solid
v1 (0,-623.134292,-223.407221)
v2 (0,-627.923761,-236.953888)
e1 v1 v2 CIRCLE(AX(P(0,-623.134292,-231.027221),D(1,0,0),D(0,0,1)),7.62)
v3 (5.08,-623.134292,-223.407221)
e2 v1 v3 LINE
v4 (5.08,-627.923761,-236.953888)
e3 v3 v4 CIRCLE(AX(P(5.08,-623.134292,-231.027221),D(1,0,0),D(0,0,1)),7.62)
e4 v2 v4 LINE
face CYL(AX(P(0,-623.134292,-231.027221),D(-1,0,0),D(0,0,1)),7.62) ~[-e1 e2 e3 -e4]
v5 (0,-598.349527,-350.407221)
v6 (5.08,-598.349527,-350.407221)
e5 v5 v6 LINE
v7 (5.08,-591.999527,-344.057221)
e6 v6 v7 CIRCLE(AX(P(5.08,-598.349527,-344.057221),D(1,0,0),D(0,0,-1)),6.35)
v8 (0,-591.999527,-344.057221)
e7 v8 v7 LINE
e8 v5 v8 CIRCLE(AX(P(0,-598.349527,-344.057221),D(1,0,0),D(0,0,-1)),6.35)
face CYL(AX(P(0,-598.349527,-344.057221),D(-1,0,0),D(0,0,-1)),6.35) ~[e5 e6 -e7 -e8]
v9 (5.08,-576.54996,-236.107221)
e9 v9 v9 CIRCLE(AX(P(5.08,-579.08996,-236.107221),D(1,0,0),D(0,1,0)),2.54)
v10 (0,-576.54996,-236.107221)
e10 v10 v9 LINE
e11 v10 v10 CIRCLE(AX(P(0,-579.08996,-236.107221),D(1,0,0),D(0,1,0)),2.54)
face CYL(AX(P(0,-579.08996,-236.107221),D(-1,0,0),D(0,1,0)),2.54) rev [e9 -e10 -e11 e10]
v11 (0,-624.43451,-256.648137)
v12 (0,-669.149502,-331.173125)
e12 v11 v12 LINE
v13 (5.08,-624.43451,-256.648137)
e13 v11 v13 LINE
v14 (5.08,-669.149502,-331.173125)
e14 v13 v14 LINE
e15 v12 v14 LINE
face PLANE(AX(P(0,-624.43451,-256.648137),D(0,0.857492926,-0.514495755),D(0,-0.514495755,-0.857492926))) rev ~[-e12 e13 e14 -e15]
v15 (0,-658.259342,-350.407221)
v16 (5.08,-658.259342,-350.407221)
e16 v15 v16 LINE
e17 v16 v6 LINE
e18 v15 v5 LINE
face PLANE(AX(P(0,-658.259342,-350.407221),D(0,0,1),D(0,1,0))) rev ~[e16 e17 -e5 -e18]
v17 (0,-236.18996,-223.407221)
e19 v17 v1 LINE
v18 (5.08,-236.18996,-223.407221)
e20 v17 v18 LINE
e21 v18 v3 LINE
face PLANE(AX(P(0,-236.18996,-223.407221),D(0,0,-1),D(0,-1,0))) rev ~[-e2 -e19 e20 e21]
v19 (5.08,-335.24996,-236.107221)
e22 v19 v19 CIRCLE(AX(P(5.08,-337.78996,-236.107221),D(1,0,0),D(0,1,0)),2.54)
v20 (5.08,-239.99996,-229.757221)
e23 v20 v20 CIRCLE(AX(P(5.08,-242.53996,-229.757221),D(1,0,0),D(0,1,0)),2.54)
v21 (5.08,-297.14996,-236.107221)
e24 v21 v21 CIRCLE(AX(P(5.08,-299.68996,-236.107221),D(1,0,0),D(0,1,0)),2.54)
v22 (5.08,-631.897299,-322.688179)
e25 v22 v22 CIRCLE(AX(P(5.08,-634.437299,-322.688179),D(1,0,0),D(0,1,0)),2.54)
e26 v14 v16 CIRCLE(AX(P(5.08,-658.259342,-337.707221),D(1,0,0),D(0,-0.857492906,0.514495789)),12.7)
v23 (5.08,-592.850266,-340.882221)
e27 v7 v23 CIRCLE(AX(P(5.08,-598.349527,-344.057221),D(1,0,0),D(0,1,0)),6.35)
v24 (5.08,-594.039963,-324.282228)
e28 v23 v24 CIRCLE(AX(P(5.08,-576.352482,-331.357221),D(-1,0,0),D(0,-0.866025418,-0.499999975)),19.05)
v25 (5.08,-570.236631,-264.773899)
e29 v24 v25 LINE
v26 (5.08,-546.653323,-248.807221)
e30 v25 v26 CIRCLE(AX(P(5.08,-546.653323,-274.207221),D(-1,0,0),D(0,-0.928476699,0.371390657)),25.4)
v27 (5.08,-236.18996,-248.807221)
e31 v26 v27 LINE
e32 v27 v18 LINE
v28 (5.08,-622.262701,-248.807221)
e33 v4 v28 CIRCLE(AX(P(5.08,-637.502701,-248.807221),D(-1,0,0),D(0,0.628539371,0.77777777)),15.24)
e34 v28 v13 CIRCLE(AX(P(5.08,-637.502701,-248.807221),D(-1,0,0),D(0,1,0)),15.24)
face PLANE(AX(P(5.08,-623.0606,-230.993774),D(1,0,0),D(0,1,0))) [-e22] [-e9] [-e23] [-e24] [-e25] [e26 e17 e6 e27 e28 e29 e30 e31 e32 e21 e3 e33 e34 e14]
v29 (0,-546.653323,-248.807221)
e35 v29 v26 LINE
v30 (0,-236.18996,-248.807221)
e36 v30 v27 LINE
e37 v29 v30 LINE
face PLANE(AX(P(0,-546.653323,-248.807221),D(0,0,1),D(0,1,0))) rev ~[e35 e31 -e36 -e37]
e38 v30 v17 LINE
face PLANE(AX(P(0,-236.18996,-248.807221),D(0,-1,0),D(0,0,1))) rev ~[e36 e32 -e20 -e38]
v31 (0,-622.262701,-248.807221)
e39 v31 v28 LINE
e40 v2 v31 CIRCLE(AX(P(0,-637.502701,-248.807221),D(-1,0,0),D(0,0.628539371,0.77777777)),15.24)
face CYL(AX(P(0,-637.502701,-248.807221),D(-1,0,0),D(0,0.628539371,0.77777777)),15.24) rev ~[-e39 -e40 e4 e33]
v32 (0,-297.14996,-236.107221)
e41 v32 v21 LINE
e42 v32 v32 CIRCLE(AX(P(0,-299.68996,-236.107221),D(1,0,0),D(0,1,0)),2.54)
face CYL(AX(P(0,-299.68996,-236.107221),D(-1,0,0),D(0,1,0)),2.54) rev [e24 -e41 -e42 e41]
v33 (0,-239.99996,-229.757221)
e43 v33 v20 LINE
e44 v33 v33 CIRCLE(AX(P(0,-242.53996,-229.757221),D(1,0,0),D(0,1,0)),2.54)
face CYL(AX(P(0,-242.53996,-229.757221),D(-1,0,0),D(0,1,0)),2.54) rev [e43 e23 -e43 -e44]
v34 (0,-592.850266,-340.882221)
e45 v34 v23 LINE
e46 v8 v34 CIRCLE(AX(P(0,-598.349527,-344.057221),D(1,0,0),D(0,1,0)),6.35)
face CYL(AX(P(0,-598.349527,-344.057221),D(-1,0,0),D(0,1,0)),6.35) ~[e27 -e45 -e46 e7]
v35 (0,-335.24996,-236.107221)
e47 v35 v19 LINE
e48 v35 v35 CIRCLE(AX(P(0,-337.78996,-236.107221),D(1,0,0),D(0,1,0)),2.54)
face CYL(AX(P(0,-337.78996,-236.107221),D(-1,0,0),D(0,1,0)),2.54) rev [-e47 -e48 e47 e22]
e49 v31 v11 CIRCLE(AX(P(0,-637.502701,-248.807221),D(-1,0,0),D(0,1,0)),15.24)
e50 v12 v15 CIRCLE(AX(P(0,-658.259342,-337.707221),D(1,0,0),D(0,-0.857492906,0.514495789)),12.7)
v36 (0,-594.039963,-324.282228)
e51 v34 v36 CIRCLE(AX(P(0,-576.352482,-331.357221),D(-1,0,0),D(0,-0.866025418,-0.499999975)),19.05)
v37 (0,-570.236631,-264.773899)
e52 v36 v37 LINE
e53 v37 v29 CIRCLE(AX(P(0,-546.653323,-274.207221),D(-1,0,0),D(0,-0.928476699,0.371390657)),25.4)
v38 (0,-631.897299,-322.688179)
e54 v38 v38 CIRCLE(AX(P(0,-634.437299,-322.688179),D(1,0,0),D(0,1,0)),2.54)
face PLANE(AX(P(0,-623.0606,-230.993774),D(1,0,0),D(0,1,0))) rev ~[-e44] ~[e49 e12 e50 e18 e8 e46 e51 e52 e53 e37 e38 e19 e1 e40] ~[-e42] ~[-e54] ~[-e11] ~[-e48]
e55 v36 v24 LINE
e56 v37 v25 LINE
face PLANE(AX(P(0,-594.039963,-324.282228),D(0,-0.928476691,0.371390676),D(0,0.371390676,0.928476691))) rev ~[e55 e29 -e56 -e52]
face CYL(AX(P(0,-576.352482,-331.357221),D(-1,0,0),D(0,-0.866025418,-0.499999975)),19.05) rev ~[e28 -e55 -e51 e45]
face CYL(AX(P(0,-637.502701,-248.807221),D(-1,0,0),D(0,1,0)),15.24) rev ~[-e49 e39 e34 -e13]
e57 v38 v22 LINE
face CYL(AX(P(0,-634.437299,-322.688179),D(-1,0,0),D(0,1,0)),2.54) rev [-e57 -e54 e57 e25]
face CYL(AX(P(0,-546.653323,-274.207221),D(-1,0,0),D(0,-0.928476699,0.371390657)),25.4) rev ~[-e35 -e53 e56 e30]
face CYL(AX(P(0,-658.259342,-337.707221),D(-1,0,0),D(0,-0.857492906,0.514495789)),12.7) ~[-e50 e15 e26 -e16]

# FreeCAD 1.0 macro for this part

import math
import FreeCAD as App
import Part
import Sketcher

V = App.Vector
Q = App.Units.Quantity

doc = App.newDocument("Part")
params = doc.addObject("Spreadsheet::Sheet", "Params")
for row, (alias, value) in enumerate([
    ("sketch1_radius", "1 in"),
    ("sketch1_diameter", "0.2 in"),
    ("sketch1_radius2", "0.3 in"),
    ("sketch1_radius3", "0.6 in"),
    ("sketch1_radius4", "0.5 in"),
    ("pad1_length", "0.2 in"),
], start=1):
    params.set(f"A{row}", alias)
    params.set(f"B{row}", "=" + value)
    params.setAlias(f"B{row}", alias)

body = doc.addObject("PartDesign::Body", "Body")

# Sketch on YZ plane
sketch1 = body.newObject("Sketcher::SketchObject", "Sketch")
sketch1.AttachmentSupport = (doc.getObject("YZ_Plane"), [""])
sketch1.MapMode = "FlatFace"
sketch1.addGeometry([
    Part.ArcOfCircle(Part.Circle(V(-623.1, -231, 0), V(0, 0, 1), 7.6), math.radians(90), math.radians(231)),  # 0
    Part.ArcOfCircle(Part.Circle(V(-637.5, -248.8, 0), V(0, 0, 1), 15.2), math.radians(0), math.radians(51)),  # 1
    Part.ArcOfCircle(Part.Circle(V(-637.5, -248.8, 0), V(0, 0, 1), 15.2), math.radians(-31), math.radians(0)),  # 2
    Part.LineSegment(V(-624.4, -256.6, 0), V(-669.1, -331.2, 0)),  # 3
    Part.ArcOfCircle(Part.Circle(V(-658.3, -337.7, 0), V(0, 0, 1), 12.7), math.radians(149), math.radians(270)),  # 4
    Part.LineSegment(V(-658.3, -350.4, 0), V(-598.3, -350.4, 0)),  # 5
    Part.ArcOfCircle(Part.Circle(V(-598.3, -344.1, 0), V(0, 0, 1), 6.3), math.radians(-90), math.radians(0)),  # 6
    Part.ArcOfCircle(Part.Circle(V(-598.3, -344.1, 0), V(0, 0, 1), 6.4), math.radians(0), math.radians(30)),  # 7
    Part.ArcOfCircle(Part.Circle(V(-576.4, -331.4, 0), V(0, 0, 1), 19.1), math.radians(158), math.radians(210)),  # 8
    Part.LineSegment(V(-594, -324.3, 0), V(-570.2, -264.8, 0)),  # 9
    Part.ArcOfCircle(Part.Circle(V(-546.7, -274.2, 0), V(0, 0, 1), 25.4), math.radians(90), math.radians(158)),  # 10
    Part.LineSegment(V(-546.7, -248.8, 0), V(-236.2, -248.8, 0)),  # 11
    Part.LineSegment(V(-236.2, -248.8, 0), V(-236.2, -223.4, 0)),  # 12
    Part.LineSegment(V(-236.2, -223.4, 0), V(-623.1, -223.4, 0)),  # 13
    Part.Circle(V(-634.4, -322.7, 0), V(0, 0, 1), 2.5),  # 14
    Part.Circle(V(-579.1, -236.1, 0), V(0, 0, 1), 2.5),  # 15
    Part.Circle(V(-337.8, -236.1, 0), V(0, 0, 1), 2.5),  # 16
    Part.Circle(V(-299.7, -236.1, 0), V(0, 0, 1), 2.5),  # 17
    Part.Circle(V(-242.5, -229.8, 0), V(0, 0, 1), 2.5),  # 18
], False)
sketch1.addConstraint([
    Sketcher.Constraint("Tangent", 0, 2, 1, 2),
    Sketcher.Constraint("Tangent", 1, 1, 2, 2),
    Sketcher.Constraint("Tangent", 2, 1, 3, 1),
    Sketcher.Constraint("Tangent", 3, 2, 4, 1),
    Sketcher.Constraint("Tangent", 4, 2, 5, 1),
    Sketcher.Constraint("Tangent", 5, 2, 6, 1),
    Sketcher.Constraint("Tangent", 6, 2, 7, 1),
    Sketcher.Constraint("Tangent", 7, 2, 8, 2),
    Sketcher.Constraint("Tangent", 8, 1, 9, 1),
    Sketcher.Constraint("Tangent", 9, 2, 10, 2),
    Sketcher.Constraint("Tangent", 10, 1, 11, 1),
    Sketcher.Constraint("Coincident", 11, 2, 12, 1),
    Sketcher.Constraint("Coincident", 12, 2, 13, 1),
    Sketcher.Constraint("Tangent", 13, 2, 0, 1),
    Sketcher.Constraint("Horizontal", 5),
    Sketcher.Constraint("Horizontal", 11),
    Sketcher.Constraint("Vertical", 12),
    Sketcher.Constraint("Horizontal", 13),
    Sketcher.Constraint("Equal", 1, 2),
    Sketcher.Constraint("Equal", 6, 7),
    Sketcher.Constraint("Equal", 14, 15),
    Sketcher.Constraint("Equal", 15, 16),
    Sketcher.Constraint("Equal", 16, 17),
    Sketcher.Constraint("Equal", 17, 18),
    Sketcher.Constraint("Horizontal", 15, 3, 16, 3),
    Sketcher.Constraint("Horizontal", 16, 3, 17, 3),
    Sketcher.Constraint("Horizontal", 2, 3, 1, 1),
    Sketcher.Constraint("Horizontal", 7, 3, 6, 2),
    Sketcher.Constraint("Horizontal", 1, 1, 10, 1),
    Sketcher.Constraint("Radius", 10, Q("1 in")),
    Sketcher.Constraint("Diameter", 14, Q("0.2 in")),
    Sketcher.Constraint("Radius", 0, Q("0.3 in")),
    Sketcher.Constraint("Radius", 1, Q("0.6 in")),
    Sketcher.Constraint("Radius", 4, Q("0.5 in")),
    Sketcher.Constraint("DistanceY", 12, 1, 12, 2, Q("1 in")),
    Sketcher.Constraint("Radius", 6, Q("0.25 in")),
    Sketcher.Constraint("Radius", 8, Q("0.75 in")),
    Sketcher.Constraint("DistanceX", 15, 3, 17, 3, Q("11 in")),
    Sketcher.Constraint("DistanceY", 8, 3, 18, 3, Q("4 in")),
    Sketcher.Constraint("DistanceX", 16, 3, 11, 2, Q("4 in")),
    Sketcher.Constraint("DistanceY", 4, 3, 2, 3, Q("3.5 in")),
    Sketcher.Constraint("DistanceY", 6, 3, 8, 3, Q("0.5 in")),
    Sketcher.Constraint("DistanceY", 15, 3, 0, 3, Q("0.2 in")),
    Sketcher.Constraint("DistanceX", 15, 3, 16, 3, Q("9.5 in")),
    Sketcher.Constraint("DistanceX", 17, 3, 18, 3, Q("2.25 in")),
    Sketcher.Constraint("DistanceX", 8, 1, -1, 1, Q("23.3874001 in")),
    Sketcher.Constraint("DistanceX", 13, 2, 13, 1, Q("386.944332 mm")),
    Sketcher.Constraint("DistanceX", 1, 3, -1, 1, Q("637.502701 mm")),
    Sketcher.Constraint("DistanceX", 14, 3, -1, 1, Q("634.437299 mm")),
    Sketcher.Constraint("DistanceY", 9, 2, -1, 1, Q("264.773899 mm")),
    Sketcher.Constraint("DistanceX", 5, 1, 5, 2, Q("59.909815 mm")),
    Sketcher.Constraint("DistanceX", 11, 1, 11, 2, Q("310.463363 mm")),
    Sketcher.Constraint("DistanceY", 14, 3, -1, 1, Q("322.688179 mm")),
])
sketch1.setExpression("Constraints[29]", "Params.sketch1_radius")
sketch1.setExpression("Constraints[30]", "Params.sketch1_diameter")
sketch1.setExpression("Constraints[31]", "Params.sketch1_radius2")
sketch1.setExpression("Constraints[32]", "Params.sketch1_radius3")
sketch1.setExpression("Constraints[33]", "Params.sketch1_radius4")
pad1 = body.newObject("PartDesign::Pad", "Pad")
pad1.Profile = sketch1
pad1.setExpression("Length", "Params.pad1_length")

doc.recompute()
